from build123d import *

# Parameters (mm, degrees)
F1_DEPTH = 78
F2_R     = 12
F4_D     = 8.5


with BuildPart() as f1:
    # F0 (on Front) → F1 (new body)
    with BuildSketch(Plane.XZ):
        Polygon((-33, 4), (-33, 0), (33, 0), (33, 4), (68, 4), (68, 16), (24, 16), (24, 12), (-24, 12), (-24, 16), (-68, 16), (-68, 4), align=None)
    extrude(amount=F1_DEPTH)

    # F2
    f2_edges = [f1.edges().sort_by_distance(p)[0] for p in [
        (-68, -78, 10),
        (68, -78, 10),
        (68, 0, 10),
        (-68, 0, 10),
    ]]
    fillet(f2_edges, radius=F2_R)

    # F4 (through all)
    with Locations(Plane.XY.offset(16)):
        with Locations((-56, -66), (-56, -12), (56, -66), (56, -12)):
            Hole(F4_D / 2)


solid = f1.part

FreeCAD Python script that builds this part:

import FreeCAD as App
import Part
import Sketcher

V = App.Vector
Q = App.Units.Quantity


def edges_at(feature, points):
    """Names of the edges that pass closest to the given points."""
    edges = feature.Shape.Edges
    near = lambda p: min(range(len(edges)), key=lambda i: edges[i].distToShape(Part.Vertex(*p))[0])
    return sorted({f"Edge{near(p) + 1}" for p in points})


def add_polygon(sketch, points):
    """Adds a closed chain of lines whose ends are joined by coincident constraints."""
    first, n = sketch.GeometryCount, len(points)
    for a, b in zip(points, points[1:] + points[:1]):
        sketch.addGeometry(Part.LineSegment(App.Vector(*a, 0), App.Vector(*b, 0)), False)
    for i in range(n):
        sketch.addConstraint(Sketcher.Constraint("Coincident", first + i, 2, first + (i + 1) % n, 1))

doc = App.newDocument("Part")
body = doc.addObject("PartDesign::Body", "Body")

# Sketch on XZ plane
sketch1 = body.newObject("Sketcher::SketchObject", "Sketch")
sketch1.AttachmentSupport = (doc.getObject("XZ_Plane"), [""])
sketch1.MapMode = "FlatFace"
add_polygon(sketch1, [(-33, 4), (-33, 0), (33, 0), (33, 4), (68, 4), (68, 16), (24, 16), (24, 12), (-24, 12), (-24, 16), (-68, 16), (-68, 4)])  # lines 0-11
sketch1.addConstraint([
    Sketcher.Constraint("Vertical", 0),
    Sketcher.Constraint("Horizontal", 1),
    Sketcher.Constraint("Vertical", 2),
    Sketcher.Constraint("Horizontal", 3),
    Sketcher.Constraint("Vertical", 4),
    Sketcher.Constraint("Horizontal", 5),
    Sketcher.Constraint("Vertical", 6),
    Sketcher.Constraint("Horizontal", 7),
    Sketcher.Constraint("Vertical", 8),
    Sketcher.Constraint("Horizontal", 9),
    Sketcher.Constraint("Vertical", 10),
    Sketcher.Constraint("Horizontal", 11),
    Sketcher.Constraint("Symmetric", 0, 2, 1, 2, -1, 1),
    Sketcher.Constraint("Symmetric", 5, 2, 8, 2, -2),
    Sketcher.Constraint("Symmetric", 3, 2, 10, 2, -2),
    Sketcher.Constraint("Equal", 2, 6),
    Sketcher.Constraint("DistanceX", 1, 1, 1, 2, Q("66 mm")),
    Sketcher.Constraint("DistanceX", 3, 1, 3, 2, Q("35 mm")),
    Sketcher.Constraint("DistanceX", 5, 2, 5, 1, Q("44 mm")),
    Sketcher.Constraint("DistanceY", 0, 2, 0, 1, Q("4 mm")),
    Sketcher.Constraint("DistanceY", 4, 1, 4, 2, Q("12 mm")),
])
pad1 = body.newObject("PartDesign::Pad", "Pad")
pad1.Profile = sketch1
pad1.Length = 78
doc.recompute()

fillet = body.newObject("PartDesign::Fillet", "Fillet")
fillet.Base = (pad1, edges_at(pad1, [
    (-68, -78, 10),
    (68, -78, 10),
    (68, 0, 10),
    (-68, 0, 10),
]))
fillet.Radius = 12

# Sketch on XY plane
sketch2 = body.newObject("Sketcher::SketchObject", "Sketch001")
sketch2.AttachmentSupport = (doc.getObject("XY_Plane"), [""])
sketch2.MapMode = "FlatFace"
sketch2.AttachmentOffset = App.Placement(V(0, 0, 16), App.Rotation())
sketch2.addGeometry([
    Part.Circle(V(-56, -66, 0), V(0, 0, 1), 4.25),
    Part.Circle(V(-56, -12, 0), V(0, 0, 1), 4.25),
    Part.Circle(V(56, -66, 0), V(0, 0, 1), 4.25),
    Part.Circle(V(56, -12, 0), V(0, 0, 1), 4.25),
], False)
sketch2.addConstraint([
    Sketcher.Constraint("Equal", 0, 1),
    Sketcher.Constraint("Equal", 1, 2),
    Sketcher.Constraint("Equal", 2, 3),
    Sketcher.Constraint("Symmetric", 0, 3, 2, 3, -2),
    Sketcher.Constraint("Symmetric", 1, 3, 3, 3, -2),
    Sketcher.Constraint("Vertical", 0, 3, 1, 3),
    Sketcher.Constraint("Diameter", 0, Q("8.5 mm")),
    Sketcher.Constraint("DistanceX", 0, 3, -1, 1, Q("56 mm")),
    Sketcher.Constraint("DistanceY", 0, 3, -1, 1, Q("66 mm")),
    Sketcher.Constraint("DistanceY", 1, 3, -1, 1, Q("12 mm")),
])
doc.recompute()
hole = body.newObject("PartDesign::Hole", "Hole")
hole.Profile = sketch2
hole.ThreadType = "None"
hole.Diameter = 8.5
hole.DepthType = "ThroughAll"

doc.recompute()
